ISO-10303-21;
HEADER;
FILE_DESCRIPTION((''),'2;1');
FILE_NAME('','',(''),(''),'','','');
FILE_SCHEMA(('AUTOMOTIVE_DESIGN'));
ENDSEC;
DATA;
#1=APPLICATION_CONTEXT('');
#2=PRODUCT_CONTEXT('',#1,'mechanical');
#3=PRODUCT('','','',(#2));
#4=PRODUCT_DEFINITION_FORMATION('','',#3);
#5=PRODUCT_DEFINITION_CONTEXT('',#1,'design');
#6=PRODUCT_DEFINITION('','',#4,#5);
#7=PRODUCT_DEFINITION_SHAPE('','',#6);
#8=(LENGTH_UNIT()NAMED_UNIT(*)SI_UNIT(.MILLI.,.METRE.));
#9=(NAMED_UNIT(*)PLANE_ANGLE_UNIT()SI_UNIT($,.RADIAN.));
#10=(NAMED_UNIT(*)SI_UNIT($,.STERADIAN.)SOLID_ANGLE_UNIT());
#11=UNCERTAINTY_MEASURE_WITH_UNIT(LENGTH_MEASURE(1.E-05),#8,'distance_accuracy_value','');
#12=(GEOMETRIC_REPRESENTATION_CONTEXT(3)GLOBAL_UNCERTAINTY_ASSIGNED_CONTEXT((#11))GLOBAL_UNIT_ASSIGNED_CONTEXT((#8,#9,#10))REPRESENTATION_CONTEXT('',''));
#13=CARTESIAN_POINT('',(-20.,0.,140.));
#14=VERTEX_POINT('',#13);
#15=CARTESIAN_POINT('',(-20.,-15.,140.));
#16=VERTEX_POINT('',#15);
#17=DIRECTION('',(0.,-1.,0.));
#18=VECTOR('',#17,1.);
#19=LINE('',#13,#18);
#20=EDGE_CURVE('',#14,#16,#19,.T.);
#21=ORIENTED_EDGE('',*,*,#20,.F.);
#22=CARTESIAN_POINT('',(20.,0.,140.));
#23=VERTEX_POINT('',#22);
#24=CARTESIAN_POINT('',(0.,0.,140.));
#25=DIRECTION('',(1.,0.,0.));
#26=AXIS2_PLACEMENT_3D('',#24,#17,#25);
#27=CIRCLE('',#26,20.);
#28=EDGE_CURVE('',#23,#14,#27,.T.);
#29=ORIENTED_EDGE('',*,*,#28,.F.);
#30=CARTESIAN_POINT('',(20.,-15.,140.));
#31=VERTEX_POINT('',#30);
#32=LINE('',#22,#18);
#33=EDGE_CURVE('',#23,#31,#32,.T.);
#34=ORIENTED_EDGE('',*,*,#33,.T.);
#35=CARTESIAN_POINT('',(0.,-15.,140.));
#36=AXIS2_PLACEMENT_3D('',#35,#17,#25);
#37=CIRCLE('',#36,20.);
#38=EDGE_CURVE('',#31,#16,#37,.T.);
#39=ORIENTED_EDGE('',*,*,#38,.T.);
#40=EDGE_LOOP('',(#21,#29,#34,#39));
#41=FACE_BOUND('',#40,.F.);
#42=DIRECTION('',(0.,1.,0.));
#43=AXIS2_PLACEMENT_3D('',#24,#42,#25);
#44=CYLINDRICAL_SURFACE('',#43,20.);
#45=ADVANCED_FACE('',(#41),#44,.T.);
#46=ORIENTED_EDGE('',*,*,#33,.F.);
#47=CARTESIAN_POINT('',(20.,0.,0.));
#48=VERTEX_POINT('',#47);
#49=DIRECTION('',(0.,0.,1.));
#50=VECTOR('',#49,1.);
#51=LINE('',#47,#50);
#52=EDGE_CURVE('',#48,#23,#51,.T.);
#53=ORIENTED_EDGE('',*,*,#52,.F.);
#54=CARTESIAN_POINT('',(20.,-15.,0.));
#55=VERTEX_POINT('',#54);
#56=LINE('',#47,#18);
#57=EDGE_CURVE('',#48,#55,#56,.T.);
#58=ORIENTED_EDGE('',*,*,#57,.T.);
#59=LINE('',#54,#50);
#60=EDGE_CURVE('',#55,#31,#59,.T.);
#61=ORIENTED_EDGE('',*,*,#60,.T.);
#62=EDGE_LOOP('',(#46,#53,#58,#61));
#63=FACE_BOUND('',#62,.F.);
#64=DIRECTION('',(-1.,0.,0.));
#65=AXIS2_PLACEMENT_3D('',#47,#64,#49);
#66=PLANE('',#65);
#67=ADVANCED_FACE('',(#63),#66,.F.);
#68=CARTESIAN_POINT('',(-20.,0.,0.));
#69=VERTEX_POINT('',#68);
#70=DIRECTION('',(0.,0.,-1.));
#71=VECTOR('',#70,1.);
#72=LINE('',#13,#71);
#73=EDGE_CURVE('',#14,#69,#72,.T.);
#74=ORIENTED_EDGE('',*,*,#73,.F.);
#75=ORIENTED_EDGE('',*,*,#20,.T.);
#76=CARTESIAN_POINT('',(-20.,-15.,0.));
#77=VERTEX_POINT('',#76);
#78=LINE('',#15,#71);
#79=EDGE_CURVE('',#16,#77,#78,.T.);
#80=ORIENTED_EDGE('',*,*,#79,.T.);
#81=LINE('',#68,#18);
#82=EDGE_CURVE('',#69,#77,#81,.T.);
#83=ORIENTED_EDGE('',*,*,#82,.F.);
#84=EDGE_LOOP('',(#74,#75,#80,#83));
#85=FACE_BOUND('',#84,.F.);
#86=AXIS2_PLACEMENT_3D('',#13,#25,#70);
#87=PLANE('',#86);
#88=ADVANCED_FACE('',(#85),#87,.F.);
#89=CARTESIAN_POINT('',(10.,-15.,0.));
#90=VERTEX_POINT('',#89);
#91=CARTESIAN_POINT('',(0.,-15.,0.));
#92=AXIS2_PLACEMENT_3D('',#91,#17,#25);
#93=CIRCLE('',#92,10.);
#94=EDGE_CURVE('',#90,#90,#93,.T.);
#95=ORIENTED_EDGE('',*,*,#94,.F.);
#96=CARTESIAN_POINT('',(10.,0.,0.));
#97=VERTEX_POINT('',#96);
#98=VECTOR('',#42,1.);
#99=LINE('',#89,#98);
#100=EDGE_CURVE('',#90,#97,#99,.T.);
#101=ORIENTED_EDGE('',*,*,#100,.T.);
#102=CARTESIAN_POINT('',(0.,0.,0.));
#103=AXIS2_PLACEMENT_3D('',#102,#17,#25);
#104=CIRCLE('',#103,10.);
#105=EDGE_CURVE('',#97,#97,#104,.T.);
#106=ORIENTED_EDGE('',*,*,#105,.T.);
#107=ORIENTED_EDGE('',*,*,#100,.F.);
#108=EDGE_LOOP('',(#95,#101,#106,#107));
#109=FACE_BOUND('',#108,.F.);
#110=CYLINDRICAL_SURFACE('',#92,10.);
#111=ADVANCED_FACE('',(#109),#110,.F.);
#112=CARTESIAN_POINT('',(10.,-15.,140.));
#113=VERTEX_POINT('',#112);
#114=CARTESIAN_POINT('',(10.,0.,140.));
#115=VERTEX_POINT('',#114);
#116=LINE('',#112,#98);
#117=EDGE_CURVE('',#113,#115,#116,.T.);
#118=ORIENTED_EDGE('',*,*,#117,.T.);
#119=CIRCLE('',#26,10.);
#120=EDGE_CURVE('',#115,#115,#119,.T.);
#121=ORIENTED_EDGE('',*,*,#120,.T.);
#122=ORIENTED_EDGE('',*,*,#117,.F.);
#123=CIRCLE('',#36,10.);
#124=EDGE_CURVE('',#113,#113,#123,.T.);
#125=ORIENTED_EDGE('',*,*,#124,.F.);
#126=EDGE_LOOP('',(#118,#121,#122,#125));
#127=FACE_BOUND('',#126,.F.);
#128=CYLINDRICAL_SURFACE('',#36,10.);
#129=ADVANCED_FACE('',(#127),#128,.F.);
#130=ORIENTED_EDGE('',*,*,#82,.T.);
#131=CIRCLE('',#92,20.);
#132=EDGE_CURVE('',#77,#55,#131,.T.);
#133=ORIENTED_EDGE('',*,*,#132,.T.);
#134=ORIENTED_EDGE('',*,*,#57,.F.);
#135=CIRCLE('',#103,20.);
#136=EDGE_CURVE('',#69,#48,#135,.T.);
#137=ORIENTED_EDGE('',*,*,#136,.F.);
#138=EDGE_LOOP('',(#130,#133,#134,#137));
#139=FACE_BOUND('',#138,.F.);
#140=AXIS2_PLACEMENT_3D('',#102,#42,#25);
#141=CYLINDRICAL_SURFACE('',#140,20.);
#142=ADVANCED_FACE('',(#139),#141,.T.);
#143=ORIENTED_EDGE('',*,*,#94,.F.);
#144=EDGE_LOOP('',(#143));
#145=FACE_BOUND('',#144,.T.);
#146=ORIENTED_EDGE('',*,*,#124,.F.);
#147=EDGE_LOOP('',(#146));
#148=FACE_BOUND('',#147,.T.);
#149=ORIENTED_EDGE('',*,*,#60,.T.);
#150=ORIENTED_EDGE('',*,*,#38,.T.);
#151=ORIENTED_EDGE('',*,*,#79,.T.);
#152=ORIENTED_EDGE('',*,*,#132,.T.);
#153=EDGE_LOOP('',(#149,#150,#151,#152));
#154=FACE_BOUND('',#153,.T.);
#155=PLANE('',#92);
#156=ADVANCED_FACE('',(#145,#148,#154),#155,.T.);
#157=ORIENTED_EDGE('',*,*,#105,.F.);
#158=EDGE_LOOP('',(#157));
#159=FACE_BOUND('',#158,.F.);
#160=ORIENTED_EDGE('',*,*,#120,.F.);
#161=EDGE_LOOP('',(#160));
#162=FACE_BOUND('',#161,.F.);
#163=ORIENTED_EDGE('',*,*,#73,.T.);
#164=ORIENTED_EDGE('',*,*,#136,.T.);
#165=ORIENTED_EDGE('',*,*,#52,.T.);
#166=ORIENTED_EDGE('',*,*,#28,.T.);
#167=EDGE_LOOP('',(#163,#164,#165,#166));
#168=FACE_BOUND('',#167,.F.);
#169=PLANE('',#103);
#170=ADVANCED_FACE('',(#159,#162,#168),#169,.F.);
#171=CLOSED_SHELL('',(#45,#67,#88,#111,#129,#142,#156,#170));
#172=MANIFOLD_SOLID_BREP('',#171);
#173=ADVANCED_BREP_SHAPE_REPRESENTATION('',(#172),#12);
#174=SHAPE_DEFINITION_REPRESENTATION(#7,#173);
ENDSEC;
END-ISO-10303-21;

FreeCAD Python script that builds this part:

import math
import FreeCAD as App
import Part
import Sketcher

V = App.Vector
Q = App.Units.Quantity

doc = App.newDocument("Part")
body = doc.addObject("PartDesign::Body", "Body")

# Sketch on XZ plane
sketch1 = body.newObject("Sketcher::SketchObject", "Sketch")
sketch1.AttachmentSupport = (doc.getObject("XZ_Plane"), [""])
sketch1.MapMode = "FlatFace"
sketch1.addGeometry(Part.ArcOfCircle(Part.Circle(V(0, 0, 0), V(0, 0, 1), 20), math.radians(180), math.radians(360)), False)
sketch1.addGeometry(Part.LineSegment(V(20, 0, 0), V(20, 140, 0)), False)
sketch1.addGeometry(Part.ArcOfCircle(Part.Circle(V(0, 140, 0), V(0, 0, 1), 20), math.radians(0), math.radians(180)), False)
sketch1.addGeometry(Part.LineSegment(V(-20, 140, 0), V(-20, 0, 0)), False)
sketch1.addConstraint(Sketcher.Constraint("Tangent", 0, 2, 1, 1))
sketch1.addConstraint(Sketcher.Constraint("Tangent", 1, 2, 2, 1))
sketch1.addConstraint(Sketcher.Constraint("Tangent", 2, 2, 3, 1))
sketch1.addConstraint(Sketcher.Constraint("Tangent", 3, 2, 0, 1))
sketch1.addConstraint(Sketcher.Constraint("Vertical", 1))
sketch1.addConstraint(Sketcher.Constraint("Vertical", 3))
sketch1.addConstraint(Sketcher.Constraint("Coincident", 0, 3, -1, 1))
sketch1.addConstraint(Sketcher.Constraint("Radius", 0, Q("20 mm")))
sketch1.addConstraint(Sketcher.Constraint("DistanceY", 1, 1, 1, 2, Q("140 mm")))
pad1 = body.newObject("PartDesign::Pad", "Pad")
pad1.Profile = sketch1
pad1.Length = 15

# Sketch on XZ plane
sketch2 = body.newObject("Sketcher::SketchObject", "Sketch001")
sketch2.AttachmentSupport = (doc.getObject("XZ_Plane"), [""])
sketch2.MapMode = "FlatFace"
sketch2.AttachmentOffset = App.Placement(V(0, 0, 15), App.Rotation())
sketch2.addGeometry(Part.Circle(V(0, 140, 0), V(0, 0, 1), 10), False)
sketch2.addGeometry(Part.Circle(V(0, 0, 0), V(0, 0, 1), 10), False)
sketch2.addConstraint(Sketcher.Constraint("Coincident", 1, 3, -1, 1))
sketch2.addConstraint(Sketcher.Constraint("Equal", 0, 1))
sketch2.addConstraint(Sketcher.Constraint("PointOnObject", 0, 3, -2))
sketch2.addConstraint(Sketcher.Constraint("Diameter", 0, Q("20 mm")))
sketch2.addConstraint(Sketcher.Constraint("DistanceY", -1, 1, 0, 3, Q("140 mm")))
pocket1 = body.newObject("PartDesign::Pocket", "Pocket")
pocket1.Profile = sketch2
pocket1.Length = 25

doc.recompute()
